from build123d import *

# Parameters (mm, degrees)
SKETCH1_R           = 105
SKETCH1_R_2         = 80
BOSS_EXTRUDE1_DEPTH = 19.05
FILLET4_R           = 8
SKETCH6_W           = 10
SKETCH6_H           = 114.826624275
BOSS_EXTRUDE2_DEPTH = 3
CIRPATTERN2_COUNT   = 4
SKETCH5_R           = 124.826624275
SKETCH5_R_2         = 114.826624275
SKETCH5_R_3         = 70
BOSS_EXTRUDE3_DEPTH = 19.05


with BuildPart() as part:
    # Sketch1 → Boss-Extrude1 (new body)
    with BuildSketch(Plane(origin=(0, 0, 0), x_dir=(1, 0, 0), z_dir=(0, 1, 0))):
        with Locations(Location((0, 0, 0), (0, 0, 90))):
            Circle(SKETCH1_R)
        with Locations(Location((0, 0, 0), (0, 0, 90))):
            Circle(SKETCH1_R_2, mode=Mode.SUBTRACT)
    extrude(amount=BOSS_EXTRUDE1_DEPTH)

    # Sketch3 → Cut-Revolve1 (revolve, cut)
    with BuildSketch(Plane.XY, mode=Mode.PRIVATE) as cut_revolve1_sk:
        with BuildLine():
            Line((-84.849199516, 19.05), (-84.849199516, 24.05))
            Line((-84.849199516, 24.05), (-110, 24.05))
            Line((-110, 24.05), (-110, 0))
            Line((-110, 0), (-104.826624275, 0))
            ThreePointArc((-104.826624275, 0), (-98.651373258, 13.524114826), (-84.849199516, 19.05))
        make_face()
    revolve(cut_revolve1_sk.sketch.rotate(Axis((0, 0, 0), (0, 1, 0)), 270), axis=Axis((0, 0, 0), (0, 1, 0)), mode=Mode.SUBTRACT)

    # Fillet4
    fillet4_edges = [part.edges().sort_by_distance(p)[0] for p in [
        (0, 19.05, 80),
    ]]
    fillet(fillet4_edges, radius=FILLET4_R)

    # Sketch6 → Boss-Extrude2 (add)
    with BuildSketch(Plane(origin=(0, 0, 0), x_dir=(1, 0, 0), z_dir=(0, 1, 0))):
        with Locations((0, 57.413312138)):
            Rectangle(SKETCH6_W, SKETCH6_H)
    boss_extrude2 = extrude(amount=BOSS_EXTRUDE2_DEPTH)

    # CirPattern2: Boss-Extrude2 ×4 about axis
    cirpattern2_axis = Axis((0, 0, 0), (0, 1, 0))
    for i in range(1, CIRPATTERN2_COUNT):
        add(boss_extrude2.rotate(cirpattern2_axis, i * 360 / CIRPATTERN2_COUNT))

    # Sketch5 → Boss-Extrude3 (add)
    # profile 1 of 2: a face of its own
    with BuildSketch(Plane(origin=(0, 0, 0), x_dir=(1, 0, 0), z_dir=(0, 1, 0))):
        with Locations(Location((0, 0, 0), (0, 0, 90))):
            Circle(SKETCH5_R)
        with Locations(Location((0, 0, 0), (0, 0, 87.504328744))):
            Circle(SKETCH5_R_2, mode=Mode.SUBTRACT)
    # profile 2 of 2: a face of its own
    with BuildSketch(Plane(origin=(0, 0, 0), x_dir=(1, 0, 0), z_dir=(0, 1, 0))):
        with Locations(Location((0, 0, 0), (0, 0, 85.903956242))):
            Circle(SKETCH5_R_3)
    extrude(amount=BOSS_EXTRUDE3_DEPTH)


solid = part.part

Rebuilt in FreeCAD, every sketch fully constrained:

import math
import FreeCAD as App
import Part
import Sketcher

V = App.Vector


def edges_at(feature, points):
    """Names of the edges that pass closest to the given points."""
    edges = feature.Shape.Edges
    near = lambda p: min(range(len(edges)), key=lambda i: edges[i].distToShape(Part.Vertex(*p))[0])
    return sorted({f"Edge{near(p) + 1}" for p in points})

doc = App.newDocument("Part")
body = doc.addObject("PartDesign::Body", "Body")

# Sketch on XZ plane
sketch1 = doc.addObject("Sketcher::SketchObject", "Sketch")
body.addObject(sketch1)
sketch1.AttachmentSupport = (doc.XZ_Plane, [""])
sketch1.MapMode = "FlatFace"
sketch1.addGeometry(Part.Circle(V(0, 0, 0), V(0, 0, 1), 105), False)
sketch1.addGeometry(Part.Circle(V(0, 0, 0), V(0, 0, 1), 80), False)
sketch1.addConstraint(Sketcher.Constraint("Coincident", 0, 3, -1, 1))
sketch1.addConstraint(Sketcher.Constraint("Coincident", 1, 3, -1, 1))
sketch1.addConstraint(Sketcher.Constraint("Diameter", 0, 210.0))
sketch1.addConstraint(Sketcher.Constraint("Diameter", 1, 160.0))
pad1 = doc.addObject("PartDesign::Pad", "Pad")
body.addObject(pad1)
pad1.Profile = sketch1
pad1.Length = 19.05
pad1.Reversed = True

# Sketch on XY plane
sketch2 = doc.addObject("Sketcher::SketchObject", "Sketch001")
body.addObject(sketch2)
sketch2.AttachmentSupport = (doc.XY_Plane, [""])
sketch2.MapMode = "FlatFace"
sketch2.addGeometry(Part.LineSegment(V(-84.8492, 19.05, 0), V(-84.8492, 24.05, 0)), False)
sketch2.addGeometry(Part.LineSegment(V(-84.8492, 24.05, 0), V(-110, 24.05, 0)), False)
sketch2.addGeometry(Part.LineSegment(V(-110, 24.05, 0), V(-110, 0, 0)), False)
sketch2.addGeometry(Part.LineSegment(V(-110, 0, 0), V(-104.826624, 0, 0)), False)
sketch2.addGeometry(Part.ArcOfCircle(Part.Circle(V(-84.8492, -0.95, 0), V(0, 0, 1), 20), math.radians(90), math.radians(177.277426)), False)
sketch2.addConstraint(Sketcher.Constraint("Coincident", 0, 2, 1, 1))
sketch2.addConstraint(Sketcher.Constraint("Coincident", 1, 2, 2, 1))
sketch2.addConstraint(Sketcher.Constraint("Coincident", 2, 2, 3, 1))
sketch2.addConstraint(Sketcher.Constraint("Coincident", 3, 2, 4, 2))
sketch2.addConstraint(Sketcher.Constraint("Coincident", 4, 1, 0, 1))
sketch2.addConstraint(Sketcher.Constraint("Vertical", 0))
sketch2.addConstraint(Sketcher.Constraint("Horizontal", 1))
sketch2.addConstraint(Sketcher.Constraint("Vertical", 2))
sketch2.addConstraint(Sketcher.Constraint("Horizontal", 3))
sketch2.addConstraint(Sketcher.Constraint("PointOnObject", 2, 2, -1))
sketch2.addConstraint(Sketcher.Constraint("Vertical", 4, 3, 0, 2))
sketch2.addConstraint(Sketcher.Constraint("Radius", 4, 20.0))
sketch2.addConstraint(Sketcher.Constraint("DistanceY", 0, 1, 0, 2, 5.0))
sketch2.addConstraint(Sketcher.Constraint("DistanceX", 1, 2, -1, 1, 110.0))
sketch2.addConstraint(Sketcher.Constraint("DistanceY", 2, 2, 2, 1, 24.05))
sketch2.addConstraint(Sketcher.Constraint("DistanceX", 1, 2, 1, 1, 25.1508))
groove = doc.addObject("PartDesign::Groove", "Groove")
body.addObject(groove)
groove.Profile = sketch2
groove.ReferenceAxis = (sketch2, ["V_Axis"])
groove.Angle = 360
doc.recompute()

fillet = doc.addObject("PartDesign::Fillet", "Fillet")
body.addObject(fillet)
fillet.Base = (groove, edges_at(groove, [(0, 19.05, 80)]))
fillet.Radius = 8

# Sketch on XZ plane
sketch3 = doc.addObject("Sketcher::SketchObject", "Sketch002")
body.addObject(sketch3)
sketch3.AttachmentSupport = (doc.XZ_Plane, [""])
sketch3.MapMode = "FlatFace"
sketch3.addGeometry(Part.LineSegment(V(-5, -114.826624, 0), V(-5, 0, 0)), False)
sketch3.addGeometry(Part.LineSegment(V(-5, 0, 0), V(5, 0, 0)), False)
sketch3.addGeometry(Part.LineSegment(V(5, 0, 0), V(5, -114.826624, 0)), False)
sketch3.addGeometry(Part.LineSegment(V(5, -114.826624, 0), V(-5, -114.826624, 0)), False)
sketch3.addConstraint(Sketcher.Constraint("Coincident", 0, 2, 1, 1))
sketch3.addConstraint(Sketcher.Constraint("Coincident", 1, 2, 2, 1))
sketch3.addConstraint(Sketcher.Constraint("Coincident", 2, 2, 3, 1))
sketch3.addConstraint(Sketcher.Constraint("Coincident", 3, 2, 0, 1))
sketch3.addConstraint(Sketcher.Constraint("Vertical", 0))
sketch3.addConstraint(Sketcher.Constraint("Horizontal", 1))
sketch3.addConstraint(Sketcher.Constraint("Vertical", 2))
sketch3.addConstraint(Sketcher.Constraint("Horizontal", 3))
sketch3.addConstraint(Sketcher.Constraint("Symmetric", 0, 2, 1, 2, -1, 1))
sketch3.addConstraint(Sketcher.Constraint("DistanceX", 1, 1, 1, 2, 10.0))
sketch3.addConstraint(Sketcher.Constraint("DistanceY", 0, 1, 0, 2, 114.826624))
pad2 = doc.addObject("PartDesign::Pad", "Pad001")
body.addObject(pad2)
pad2.Profile = sketch3
pad2.Length = 3
pad2.Reversed = True
doc.recompute()

polarpattern = doc.addObject("PartDesign::PolarPattern", "PolarPattern")
body.addObject(polarpattern)
polarpattern.Originals = [pad2]
polarpattern.Axis = (doc.Y_Axis, [""])
polarpattern.Angle = 360
polarpattern.Occurrences = 4
body.Tip = polarpattern

# Sketch on XZ plane
sketch4 = doc.addObject("Sketcher::SketchObject", "Sketch003")
body.addObject(sketch4)
sketch4.AttachmentSupport = (doc.XZ_Plane, [""])
sketch4.MapMode = "FlatFace"
sketch4.addGeometry(Part.Circle(V(0, 0, 0), V(0, 0, 1), 124.826624), False)
sketch4.addGeometry(Part.Circle(V(0, 0, 0), V(0, 0, 1), 114.826624), False)
sketch4.addGeometry(Part.Circle(V(0, 0, 0), V(0, 0, 1), 70), False)
sketch4.addConstraint(Sketcher.Constraint("Coincident", 0, 3, -1, 1))
sketch4.addConstraint(Sketcher.Constraint("Coincident", 1, 3, -1, 1))
sketch4.addConstraint(Sketcher.Constraint("Coincident", 2, 3, -1, 1))
sketch4.addConstraint(Sketcher.Constraint("Diameter", 2, 140.0))
sketch4.addConstraint(Sketcher.Constraint("Diameter", 0, 249.653249))
sketch4.addConstraint(Sketcher.Constraint("Diameter", 1, 229.653249))
pad3 = doc.addObject("PartDesign::Pad", "Pad002")
body.addObject(pad3)
pad3.Profile = sketch4
pad3.Length = 19.05
pad3.Reversed = True

doc.recompute()
